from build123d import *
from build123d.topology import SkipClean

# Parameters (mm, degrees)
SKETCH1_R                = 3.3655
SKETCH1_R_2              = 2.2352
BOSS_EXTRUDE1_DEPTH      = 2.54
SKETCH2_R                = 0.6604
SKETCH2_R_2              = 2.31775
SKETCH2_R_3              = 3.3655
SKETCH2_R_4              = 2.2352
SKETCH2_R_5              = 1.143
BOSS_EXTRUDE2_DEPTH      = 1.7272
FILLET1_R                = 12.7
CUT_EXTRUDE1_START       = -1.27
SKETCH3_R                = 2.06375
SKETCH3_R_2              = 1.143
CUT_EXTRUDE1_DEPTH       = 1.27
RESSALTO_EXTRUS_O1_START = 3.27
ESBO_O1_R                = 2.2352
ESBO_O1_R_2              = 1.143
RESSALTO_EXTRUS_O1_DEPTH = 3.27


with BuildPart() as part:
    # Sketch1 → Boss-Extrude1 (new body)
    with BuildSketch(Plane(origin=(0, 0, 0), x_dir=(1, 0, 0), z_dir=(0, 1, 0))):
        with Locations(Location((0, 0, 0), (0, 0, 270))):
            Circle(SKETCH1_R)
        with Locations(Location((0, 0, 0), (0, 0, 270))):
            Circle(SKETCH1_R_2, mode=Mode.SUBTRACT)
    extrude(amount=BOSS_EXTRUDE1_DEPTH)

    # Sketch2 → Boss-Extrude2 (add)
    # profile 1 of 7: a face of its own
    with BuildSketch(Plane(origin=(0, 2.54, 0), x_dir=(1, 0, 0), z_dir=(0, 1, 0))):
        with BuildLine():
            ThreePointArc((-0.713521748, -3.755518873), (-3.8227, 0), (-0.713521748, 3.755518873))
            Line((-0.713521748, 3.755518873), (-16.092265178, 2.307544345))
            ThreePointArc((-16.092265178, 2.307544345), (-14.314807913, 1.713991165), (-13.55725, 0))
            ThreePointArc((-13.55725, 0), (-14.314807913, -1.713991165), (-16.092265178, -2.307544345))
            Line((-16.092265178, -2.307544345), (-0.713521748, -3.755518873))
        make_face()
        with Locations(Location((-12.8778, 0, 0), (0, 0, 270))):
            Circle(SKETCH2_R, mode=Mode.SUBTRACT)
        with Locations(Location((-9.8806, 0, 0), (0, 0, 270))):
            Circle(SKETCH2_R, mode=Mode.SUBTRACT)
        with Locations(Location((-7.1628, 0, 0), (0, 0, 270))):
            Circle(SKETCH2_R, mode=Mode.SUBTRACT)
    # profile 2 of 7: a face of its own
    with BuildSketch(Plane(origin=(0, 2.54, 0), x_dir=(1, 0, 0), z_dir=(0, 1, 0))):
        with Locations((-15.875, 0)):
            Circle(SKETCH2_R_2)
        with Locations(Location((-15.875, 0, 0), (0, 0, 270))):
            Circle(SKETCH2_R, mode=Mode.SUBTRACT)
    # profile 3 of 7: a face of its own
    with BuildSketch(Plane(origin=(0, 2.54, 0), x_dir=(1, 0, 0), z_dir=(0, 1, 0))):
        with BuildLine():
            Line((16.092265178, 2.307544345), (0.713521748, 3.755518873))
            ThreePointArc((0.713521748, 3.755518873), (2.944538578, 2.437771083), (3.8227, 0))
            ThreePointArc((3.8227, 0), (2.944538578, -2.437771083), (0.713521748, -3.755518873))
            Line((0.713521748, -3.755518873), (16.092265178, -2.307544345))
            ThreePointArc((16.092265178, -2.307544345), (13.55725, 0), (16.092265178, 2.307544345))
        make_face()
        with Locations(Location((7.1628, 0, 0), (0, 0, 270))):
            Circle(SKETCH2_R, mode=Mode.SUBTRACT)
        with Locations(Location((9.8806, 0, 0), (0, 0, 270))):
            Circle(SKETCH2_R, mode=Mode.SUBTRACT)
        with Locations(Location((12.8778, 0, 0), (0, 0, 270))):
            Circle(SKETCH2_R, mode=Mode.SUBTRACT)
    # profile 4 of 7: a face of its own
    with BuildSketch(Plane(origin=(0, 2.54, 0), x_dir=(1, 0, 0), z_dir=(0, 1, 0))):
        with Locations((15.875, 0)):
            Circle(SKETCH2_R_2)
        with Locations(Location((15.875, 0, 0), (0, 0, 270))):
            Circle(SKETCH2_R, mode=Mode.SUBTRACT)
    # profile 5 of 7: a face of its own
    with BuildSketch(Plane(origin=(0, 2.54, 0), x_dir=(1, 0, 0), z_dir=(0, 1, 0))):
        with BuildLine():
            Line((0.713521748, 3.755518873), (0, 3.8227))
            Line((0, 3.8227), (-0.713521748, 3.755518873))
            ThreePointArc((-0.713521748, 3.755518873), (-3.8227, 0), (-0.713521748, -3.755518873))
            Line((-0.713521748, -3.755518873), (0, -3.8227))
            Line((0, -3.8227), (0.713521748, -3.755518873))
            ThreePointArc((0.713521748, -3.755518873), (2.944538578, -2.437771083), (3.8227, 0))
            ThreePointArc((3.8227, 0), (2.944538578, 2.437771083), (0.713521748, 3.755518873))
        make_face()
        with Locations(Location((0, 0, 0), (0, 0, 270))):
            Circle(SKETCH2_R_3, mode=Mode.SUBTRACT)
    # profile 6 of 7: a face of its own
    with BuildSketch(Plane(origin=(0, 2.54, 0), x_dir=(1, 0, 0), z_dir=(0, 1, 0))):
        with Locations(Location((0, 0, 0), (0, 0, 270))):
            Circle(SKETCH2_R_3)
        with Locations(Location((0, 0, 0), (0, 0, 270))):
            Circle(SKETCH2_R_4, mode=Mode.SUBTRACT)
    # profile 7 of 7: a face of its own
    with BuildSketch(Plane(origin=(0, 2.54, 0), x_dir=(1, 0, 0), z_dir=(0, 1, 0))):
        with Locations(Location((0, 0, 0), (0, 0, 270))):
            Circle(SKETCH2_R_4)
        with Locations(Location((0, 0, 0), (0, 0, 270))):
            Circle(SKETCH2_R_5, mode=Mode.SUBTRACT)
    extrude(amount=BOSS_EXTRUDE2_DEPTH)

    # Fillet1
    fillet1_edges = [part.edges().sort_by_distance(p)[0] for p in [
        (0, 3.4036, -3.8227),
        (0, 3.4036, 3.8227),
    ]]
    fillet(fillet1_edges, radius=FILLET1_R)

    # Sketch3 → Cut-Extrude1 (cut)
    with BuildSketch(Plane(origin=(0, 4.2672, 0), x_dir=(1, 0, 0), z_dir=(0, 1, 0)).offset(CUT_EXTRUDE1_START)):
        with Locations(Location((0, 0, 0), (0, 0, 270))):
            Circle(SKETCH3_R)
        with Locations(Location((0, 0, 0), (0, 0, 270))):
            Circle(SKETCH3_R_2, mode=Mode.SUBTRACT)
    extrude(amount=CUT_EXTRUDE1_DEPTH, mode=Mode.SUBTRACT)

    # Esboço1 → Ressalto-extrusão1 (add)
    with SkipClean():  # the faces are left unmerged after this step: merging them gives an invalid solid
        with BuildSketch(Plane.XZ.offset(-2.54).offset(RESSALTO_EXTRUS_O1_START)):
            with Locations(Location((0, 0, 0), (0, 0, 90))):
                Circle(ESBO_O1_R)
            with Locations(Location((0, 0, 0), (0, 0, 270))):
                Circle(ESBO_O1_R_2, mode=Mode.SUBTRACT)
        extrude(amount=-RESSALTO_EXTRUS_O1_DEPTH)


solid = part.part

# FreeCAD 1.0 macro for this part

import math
import FreeCAD as App
import Part
import Sketcher
from FreeCAD import Vector
Q = App.Units.Quantity


def edges_at(feature, points):
    """Names of the edges that pass closest to the given points."""
    edges = feature.Shape.Edges
    near = lambda p: min(range(len(edges)), key=lambda i: edges[i].distToShape(Part.Vertex(*p))[0])
    return sorted({f"Edge{near(p) + 1}" for p in points})

doc = App.newDocument("Part")
body = doc.addObject("PartDesign::Body", "Body")

# Sketch on XZ plane
sketch1 = body.newObject("Sketcher::SketchObject", "Sketch")
sketch1.AttachmentSupport = (doc.getObject("XZ_Plane"), [""])
sketch1.MapMode = "FlatFace"
sketch1.addGeometry(Part.Circle(Vector(0, 0, 0), Vector(0, 0, 1), 3.4), False)
sketch1.addGeometry(Part.Circle(Vector(0, 0, 0), Vector(0, 0, 1), 2.2), False)
sketch1.addConstraint(Sketcher.Constraint("Coincident", 0, 3, -1, 1))
sketch1.addConstraint(Sketcher.Constraint("Coincident", 1, 3, -1, 1))
sketch1.addConstraint(Sketcher.Constraint("Diameter", 0, Q("0.265 in")))
sketch1.addConstraint(Sketcher.Constraint("Diameter", 1, Q("0.176 in")))
pad1 = body.newObject("PartDesign::Pad", "Pad")
pad1.Profile = sketch1
pad1.Length = Q("0.1 in")
pad1.Reversed = True

# Sketch on XZ plane
sketch2 = body.newObject("Sketcher::SketchObject", "Sketch001")
sketch2.AttachmentSupport = (doc.getObject("XZ_Plane"), [""])
sketch2.MapMode = "FlatFace"
sketch2.AttachmentOffset = App.Placement(Vector(0, 0, -0.1 * 25.4), App.Rotation())
sketch2.addGeometry(Part.LineSegment(Vector(-16.1, 2.3, 0), Vector(-0.7, 3.8, 0)), False)
sketch2.addGeometry(Part.LineSegment(Vector(-0.7, 3.8, 0), Vector(0, 3.8, 0)), False)
sketch2.addGeometry(Part.LineSegment(Vector(0, 3.8, 0), Vector(0.7, 3.8, 0)), False)
sketch2.addGeometry(Part.LineSegment(Vector(0.7, 3.8, 0), Vector(16.1, 2.3, 0)), False)
sketch2.addGeometry(Part.ArcOfCircle(Part.Circle(Vector(15.9, 0, 0), Vector(0, 0, 1), 2.3), math.radians(-85), math.radians(85)), False)
sketch2.addGeometry(Part.LineSegment(Vector(16.1, -2.3, 0), Vector(0.7, -3.8, 0)), False)
sketch2.addGeometry(Part.LineSegment(Vector(0.7, -3.8, 0), Vector(0, -3.8, 0)), False)
sketch2.addGeometry(Part.LineSegment(Vector(0, -3.8, 0), Vector(-0.7, -3.8, 0)), False)
sketch2.addGeometry(Part.LineSegment(Vector(-0.7, -3.8, 0), Vector(-16.1, -2.3, 0)), False)
sketch2.addGeometry(Part.ArcOfCircle(Part.Circle(Vector(-15.9, 0, 0), Vector(0, 0, 1), 2.3), math.radians(95), math.radians(265)), False)
sketch2.addGeometry(Part.Circle(Vector(-12.9, 0, 0), Vector(0, 0, 1), 0.7), False)
sketch2.addGeometry(Part.Circle(Vector(-9.9, 0, 0), Vector(0, 0, 1), 0.7), False)
sketch2.addGeometry(Part.Circle(Vector(-7.2, 0, 0), Vector(0, 0, 1), 0.7), False)
sketch2.addGeometry(Part.Circle(Vector(-15.9, 0, 0), Vector(0, 0, 1), 0.7), False)
sketch2.addGeometry(Part.Circle(Vector(12.9, 0, 0), Vector(0, 0, 1), 0.7), False)
sketch2.addGeometry(Part.Circle(Vector(9.9, 0, 0), Vector(0, 0, 1), 0.7), False)
sketch2.addGeometry(Part.Circle(Vector(7.2, 0, 0), Vector(0, 0, 1), 0.7), False)
sketch2.addGeometry(Part.Circle(Vector(15.9, 0, 0), Vector(0, 0, 1), 0.7), False)
sketch2.addGeometry(Part.Circle(Vector(0, 0, 0), Vector(0, 0, 1), 1.1), False)
sketch2.addConstraint(Sketcher.Constraint("Coincident", 0, 2, 1, 1))
sketch2.addConstraint(Sketcher.Constraint("Coincident", 1, 2, 2, 1))
sketch2.addConstraint(Sketcher.Constraint("Coincident", 2, 2, 3, 1))
sketch2.addConstraint(Sketcher.Constraint("Tangent", 3, 2, 4, 2))
sketch2.addConstraint(Sketcher.Constraint("Tangent", 4, 1, 5, 1))
sketch2.addConstraint(Sketcher.Constraint("Coincident", 5, 2, 6, 1))
sketch2.addConstraint(Sketcher.Constraint("Coincident", 6, 2, 7, 1))
sketch2.addConstraint(Sketcher.Constraint("Coincident", 7, 2, 8, 1))
sketch2.addConstraint(Sketcher.Constraint("Tangent", 8, 2, 9, 2))
sketch2.addConstraint(Sketcher.Constraint("Tangent", 9, 1, 0, 1))
sketch2.addConstraint(Sketcher.Constraint("Coincident", 18, 3, -1, 1))
sketch2.addConstraint(Sketcher.Constraint("Coincident", 13, 3, 9, 3))
sketch2.addConstraint(Sketcher.Constraint("Coincident", 17, 3, 4, 3))
sketch2.addConstraint(Sketcher.Constraint("Equal", 4, 9))
sketch2.addConstraint(Sketcher.Constraint("Equal", 10, 11))
sketch2.addConstraint(Sketcher.Constraint("Equal", 11, 12))
sketch2.addConstraint(Sketcher.Constraint("Equal", 12, 13))
sketch2.addConstraint(Sketcher.Constraint("Equal", 13, 14))
sketch2.addConstraint(Sketcher.Constraint("Equal", 14, 15))
sketch2.addConstraint(Sketcher.Constraint("Equal", 15, 16))
sketch2.addConstraint(Sketcher.Constraint("Equal", 16, 17))
sketch2.addConstraint(Sketcher.Constraint("Symmetric", 4, 3, 9, 3, -1, 1))
sketch2.addConstraint(Sketcher.Constraint("Symmetric", 10, 3, 14, 3, -1, 1))
sketch2.addConstraint(Sketcher.Constraint("Symmetric", 11, 3, 15, 3, -1, 1))
sketch2.addConstraint(Sketcher.Constraint("Symmetric", 12, 3, 16, 3, -1, 1))
sketch2.addConstraint(Sketcher.Constraint("Symmetric", 0, 2, 5, 2, -1, 1))
sketch2.addConstraint(Sketcher.Constraint("Symmetric", 1, 2, 6, 2, -1, 1))
sketch2.addConstraint(Sketcher.Constraint("Symmetric", 2, 2, 7, 2, -1, 1))
sketch2.addConstraint(Sketcher.Constraint("Symmetric", 0, 2, 2, 2, -2))
sketch2.addConstraint(Sketcher.Constraint("PointOnObject", 4, 3, -1))
sketch2.addConstraint(Sketcher.Constraint("PointOnObject", 10, 3, -1))
sketch2.addConstraint(Sketcher.Constraint("PointOnObject", 11, 3, -1))
sketch2.addConstraint(Sketcher.Constraint("PointOnObject", 12, 3, -1))
sketch2.addConstraint(Sketcher.Constraint("PointOnObject", 1, 2, -2))
sketch2.addConstraint(Sketcher.Constraint("Parallel", 0, 1))
sketch2.addConstraint(Sketcher.Constraint("Diameter", 18, Q("0.09 in")))
sketch2.addConstraint(Sketcher.Constraint("Diameter", 10, Q("0.052 in")))
sketch2.addConstraint(Sketcher.Constraint("DistanceX", 9, 3, 4, 3, Q("1.25 in")))
sketch2.addConstraint(Sketcher.Constraint("DistanceX", 10, 3, -1, 1, Q("0.507 in")))
sketch2.addConstraint(Sketcher.Constraint("DistanceX", 11, 3, -1, 1, Q("0.389 in")))
sketch2.addConstraint(Sketcher.Constraint("DistanceX", 12, 3, -1, 1, Q("0.282 in")))
sketch2.addConstraint(Sketcher.Constraint("Radius", 4, 2.31775))
sketch2.addConstraint(Sketcher.Constraint("DistanceY", 6, 2, 1, 2, Q("0.301 in")))
sketch2.addConstraint(Sketcher.Constraint("Distance", 0, 15.44676))
pad2 = body.newObject("PartDesign::Pad", "Pad001")
pad2.Profile = sketch2
pad2.Length = Q("0.068 in")
pad2.Reversed = True
doc.recompute()

fillet = body.newObject("PartDesign::Fillet", "Fillet")
fillet.Base = (pad2, edges_at(pad2, [(0, 3.404, -3.823), (0, 3.404, 3.823)]))
fillet.Radius = Q("0.5 in")

# Sketch on XZ plane
sketch3 = body.newObject("Sketcher::SketchObject", "Sketch002")
sketch3.AttachmentSupport = (doc.getObject("XZ_Plane"), [""])
sketch3.MapMode = "FlatFace"
sketch3.AttachmentOffset = App.Placement(Vector(0, 0, -0.118 * 25.4), App.Rotation())
sketch3.addGeometry(Part.Circle(Vector(0, 0, 0), Vector(0, 0, 1), 2.1), False)
sketch3.addGeometry(Part.Circle(Vector(0, 0, 0), Vector(0, 0, 1), 1.1), False)
sketch3.addConstraint(Sketcher.Constraint("Coincident", 0, 3, -1, 1))
sketch3.addConstraint(Sketcher.Constraint("Coincident", 1, 3, -1, 1))
sketch3.addConstraint(Sketcher.Constraint("Diameter", 1, Q("0.09 in")))
sketch3.addConstraint(Sketcher.Constraint("Diameter", 0, Q("0.1625 in")))
pocket1 = body.newObject("PartDesign::Pocket", "Pocket")
pocket1.Profile = sketch3
pocket1.Length = Q("0.05 in")

# Sketch on XZ plane
sketch4 = body.newObject("Sketcher::SketchObject", "Sketch003")
sketch4.AttachmentSupport = (doc.getObject("XZ_Plane"), [""])
sketch4.MapMode = "FlatFace"
sketch4.AttachmentOffset = App.Placement(Vector(0, 0, 0.73), App.Rotation())
sketch4.addGeometry(Part.Circle(Vector(0, 0, 0), Vector(0, 0, 1), 2.2), False)
sketch4.addGeometry(Part.Circle(Vector(0, 0, 0), Vector(0, 0, 1), 1.1), False)
sketch4.addConstraint(Sketcher.Constraint("Coincident", 0, 3, -1, 1))
sketch4.addConstraint(Sketcher.Constraint("Coincident", 1, 3, -1, 1))
sketch4.addConstraint(Sketcher.Constraint("Diameter", 1, Q("0.09 in")))
sketch4.addConstraint(Sketcher.Constraint("Diameter", 0, Q("0.176 in")))
pad3 = body.newObject("PartDesign::Pad", "Pad002")
pad3.Profile = sketch4
pad3.Length = 3.27
pad3.Reversed = True

doc.recompute()
